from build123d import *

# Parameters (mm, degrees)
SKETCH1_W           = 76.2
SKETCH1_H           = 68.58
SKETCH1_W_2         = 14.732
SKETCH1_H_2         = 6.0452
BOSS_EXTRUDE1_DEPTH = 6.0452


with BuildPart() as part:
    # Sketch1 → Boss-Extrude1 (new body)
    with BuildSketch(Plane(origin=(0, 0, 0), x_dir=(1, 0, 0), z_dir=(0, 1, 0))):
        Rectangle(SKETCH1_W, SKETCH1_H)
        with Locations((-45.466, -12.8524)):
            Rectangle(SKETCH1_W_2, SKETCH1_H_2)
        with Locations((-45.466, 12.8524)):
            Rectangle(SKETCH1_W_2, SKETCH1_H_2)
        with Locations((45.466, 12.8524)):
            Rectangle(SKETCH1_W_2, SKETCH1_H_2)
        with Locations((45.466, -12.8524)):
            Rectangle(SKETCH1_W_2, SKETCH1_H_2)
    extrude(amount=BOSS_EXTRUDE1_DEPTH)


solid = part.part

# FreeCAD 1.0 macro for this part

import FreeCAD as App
import Part
import Sketcher
from FreeCAD import Vector
Q = App.Units.Quantity

doc = App.newDocument("Part")
body = doc.addObject("PartDesign::Body", "Body")

# Sketch on XZ plane
sketch1 = body.newObject("Sketcher::SketchObject", "Sketch")
sketch1.AttachmentSupport = (doc.getObject("XZ_Plane"), [""])
sketch1.MapMode = "FlatFace"
sketch1.addGeometry([
    Part.LineSegment(Vector(-38, 16, 0), Vector(-38, 34, 0)),  # 0
    Part.LineSegment(Vector(-38, 34, 0), Vector(38, 34, 0)),  # 1
    Part.LineSegment(Vector(38, 34, 0), Vector(38, 16, 0)),  # 2
    Part.LineSegment(Vector(38, 16, 0), Vector(53, 16, 0)),  # 3
    Part.LineSegment(Vector(53, 16, 0), Vector(53, 10, 0)),  # 4
    Part.LineSegment(Vector(53, 10, 0), Vector(38, 10, 0)),  # 5
    Part.LineSegment(Vector(38, 10, 0), Vector(38, -10, 0)),  # 6
    Part.LineSegment(Vector(38, -10, 0), Vector(53, -10, 0)),  # 7
    Part.LineSegment(Vector(53, -10, 0), Vector(53, -16, 0)),  # 8
    Part.LineSegment(Vector(53, -16, 0), Vector(38, -16, 0)),  # 9
    Part.LineSegment(Vector(38, -16, 0), Vector(38, -34, 0)),  # 10
    Part.LineSegment(Vector(38, -34, 0), Vector(-38, -34, 0)),  # 11
    Part.LineSegment(Vector(-38, -34, 0), Vector(-38, -16, 0)),  # 12
    Part.LineSegment(Vector(-38, -16, 0), Vector(-53, -16, 0)),  # 13
    Part.LineSegment(Vector(-53, -16, 0), Vector(-53, -10, 0)),  # 14
    Part.LineSegment(Vector(-53, -10, 0), Vector(-38, -10, 0)),  # 15
    Part.LineSegment(Vector(-38, -10, 0), Vector(-38, 10, 0)),  # 16
    Part.LineSegment(Vector(-38, 10, 0), Vector(-53, 10, 0)),  # 17
    Part.LineSegment(Vector(-53, 10, 0), Vector(-53, 16, 0)),  # 18
    Part.LineSegment(Vector(-53, 16, 0), Vector(-38, 16, 0)),  # 19
], False)
sketch1.addConstraint([
    Sketcher.Constraint("Coincident", 0, 2, 1, 1),
    Sketcher.Constraint("Coincident", 1, 2, 2, 1),
    Sketcher.Constraint("Coincident", 2, 2, 3, 1),
    Sketcher.Constraint("Coincident", 3, 2, 4, 1),
    Sketcher.Constraint("Coincident", 4, 2, 5, 1),
    Sketcher.Constraint("Coincident", 5, 2, 6, 1),
    Sketcher.Constraint("Coincident", 6, 2, 7, 1),
    Sketcher.Constraint("Coincident", 7, 2, 8, 1),
    Sketcher.Constraint("Coincident", 8, 2, 9, 1),
    Sketcher.Constraint("Coincident", 9, 2, 10, 1),
    Sketcher.Constraint("Coincident", 10, 2, 11, 1),
    Sketcher.Constraint("Coincident", 11, 2, 12, 1),
    Sketcher.Constraint("Coincident", 12, 2, 13, 1),
    Sketcher.Constraint("Coincident", 13, 2, 14, 1),
    Sketcher.Constraint("Coincident", 14, 2, 15, 1),
    Sketcher.Constraint("Coincident", 15, 2, 16, 1),
    Sketcher.Constraint("Coincident", 16, 2, 17, 1),
    Sketcher.Constraint("Coincident", 17, 2, 18, 1),
    Sketcher.Constraint("Coincident", 18, 2, 19, 1),
    Sketcher.Constraint("Coincident", 19, 2, 0, 1),
    Sketcher.Constraint("Vertical", 0),
    Sketcher.Constraint("Horizontal", 1),
    Sketcher.Constraint("Vertical", 2),
    Sketcher.Constraint("Horizontal", 3),
    Sketcher.Constraint("Vertical", 4),
    Sketcher.Constraint("Horizontal", 5),
    Sketcher.Constraint("Vertical", 6),
    Sketcher.Constraint("Horizontal", 7),
    Sketcher.Constraint("Vertical", 8),
    Sketcher.Constraint("Horizontal", 9),
    Sketcher.Constraint("Vertical", 10),
    Sketcher.Constraint("Horizontal", 11),
    Sketcher.Constraint("Vertical", 12),
    Sketcher.Constraint("Horizontal", 13),
    Sketcher.Constraint("Vertical", 14),
    Sketcher.Constraint("Horizontal", 15),
    Sketcher.Constraint("Vertical", 16),
    Sketcher.Constraint("Horizontal", 17),
    Sketcher.Constraint("Vertical", 18),
    Sketcher.Constraint("Horizontal", 19),
    Sketcher.Constraint("Symmetric", 0, 2, 10, 2, -1, 1),
    Sketcher.Constraint("Symmetric", 2, 2, 12, 2, -1, 1),
    Sketcher.Constraint("Symmetric", 4, 2, 14, 2, -1, 1),
    Sketcher.Constraint("Symmetric", 6, 2, 16, 2, -1, 1),
    Sketcher.Constraint("Symmetric", 8, 2, 18, 2, -1, 1),
    Sketcher.Constraint("Symmetric", 9, 2, 12, 2, -2),
    Sketcher.Constraint("Symmetric", 7, 2, 14, 2, -2),
    Sketcher.Constraint("Vertical", 2, 2, 5, 2),
    Sketcher.Constraint("DistanceX", 1, 1, 1, 2, Q("3 in")),
    Sketcher.Constraint("DistanceX", 3, 1, 3, 2, Q("0.58 in")),
    Sketcher.Constraint("DistanceY", 11, 2, 0, 2, Q("2.7 in")),
    Sketcher.Constraint("DistanceY", 0, 1, 0, 2, Q("0.725 in")),
    Sketcher.Constraint("DistanceY", 4, 2, 4, 1, Q("0.238 in")),
])
pad1 = body.newObject("PartDesign::Pad", "Pad")
pad1.Profile = sketch1
pad1.Length = Q("0.238 in")
pad1.Reversed = True

doc.recompute()
